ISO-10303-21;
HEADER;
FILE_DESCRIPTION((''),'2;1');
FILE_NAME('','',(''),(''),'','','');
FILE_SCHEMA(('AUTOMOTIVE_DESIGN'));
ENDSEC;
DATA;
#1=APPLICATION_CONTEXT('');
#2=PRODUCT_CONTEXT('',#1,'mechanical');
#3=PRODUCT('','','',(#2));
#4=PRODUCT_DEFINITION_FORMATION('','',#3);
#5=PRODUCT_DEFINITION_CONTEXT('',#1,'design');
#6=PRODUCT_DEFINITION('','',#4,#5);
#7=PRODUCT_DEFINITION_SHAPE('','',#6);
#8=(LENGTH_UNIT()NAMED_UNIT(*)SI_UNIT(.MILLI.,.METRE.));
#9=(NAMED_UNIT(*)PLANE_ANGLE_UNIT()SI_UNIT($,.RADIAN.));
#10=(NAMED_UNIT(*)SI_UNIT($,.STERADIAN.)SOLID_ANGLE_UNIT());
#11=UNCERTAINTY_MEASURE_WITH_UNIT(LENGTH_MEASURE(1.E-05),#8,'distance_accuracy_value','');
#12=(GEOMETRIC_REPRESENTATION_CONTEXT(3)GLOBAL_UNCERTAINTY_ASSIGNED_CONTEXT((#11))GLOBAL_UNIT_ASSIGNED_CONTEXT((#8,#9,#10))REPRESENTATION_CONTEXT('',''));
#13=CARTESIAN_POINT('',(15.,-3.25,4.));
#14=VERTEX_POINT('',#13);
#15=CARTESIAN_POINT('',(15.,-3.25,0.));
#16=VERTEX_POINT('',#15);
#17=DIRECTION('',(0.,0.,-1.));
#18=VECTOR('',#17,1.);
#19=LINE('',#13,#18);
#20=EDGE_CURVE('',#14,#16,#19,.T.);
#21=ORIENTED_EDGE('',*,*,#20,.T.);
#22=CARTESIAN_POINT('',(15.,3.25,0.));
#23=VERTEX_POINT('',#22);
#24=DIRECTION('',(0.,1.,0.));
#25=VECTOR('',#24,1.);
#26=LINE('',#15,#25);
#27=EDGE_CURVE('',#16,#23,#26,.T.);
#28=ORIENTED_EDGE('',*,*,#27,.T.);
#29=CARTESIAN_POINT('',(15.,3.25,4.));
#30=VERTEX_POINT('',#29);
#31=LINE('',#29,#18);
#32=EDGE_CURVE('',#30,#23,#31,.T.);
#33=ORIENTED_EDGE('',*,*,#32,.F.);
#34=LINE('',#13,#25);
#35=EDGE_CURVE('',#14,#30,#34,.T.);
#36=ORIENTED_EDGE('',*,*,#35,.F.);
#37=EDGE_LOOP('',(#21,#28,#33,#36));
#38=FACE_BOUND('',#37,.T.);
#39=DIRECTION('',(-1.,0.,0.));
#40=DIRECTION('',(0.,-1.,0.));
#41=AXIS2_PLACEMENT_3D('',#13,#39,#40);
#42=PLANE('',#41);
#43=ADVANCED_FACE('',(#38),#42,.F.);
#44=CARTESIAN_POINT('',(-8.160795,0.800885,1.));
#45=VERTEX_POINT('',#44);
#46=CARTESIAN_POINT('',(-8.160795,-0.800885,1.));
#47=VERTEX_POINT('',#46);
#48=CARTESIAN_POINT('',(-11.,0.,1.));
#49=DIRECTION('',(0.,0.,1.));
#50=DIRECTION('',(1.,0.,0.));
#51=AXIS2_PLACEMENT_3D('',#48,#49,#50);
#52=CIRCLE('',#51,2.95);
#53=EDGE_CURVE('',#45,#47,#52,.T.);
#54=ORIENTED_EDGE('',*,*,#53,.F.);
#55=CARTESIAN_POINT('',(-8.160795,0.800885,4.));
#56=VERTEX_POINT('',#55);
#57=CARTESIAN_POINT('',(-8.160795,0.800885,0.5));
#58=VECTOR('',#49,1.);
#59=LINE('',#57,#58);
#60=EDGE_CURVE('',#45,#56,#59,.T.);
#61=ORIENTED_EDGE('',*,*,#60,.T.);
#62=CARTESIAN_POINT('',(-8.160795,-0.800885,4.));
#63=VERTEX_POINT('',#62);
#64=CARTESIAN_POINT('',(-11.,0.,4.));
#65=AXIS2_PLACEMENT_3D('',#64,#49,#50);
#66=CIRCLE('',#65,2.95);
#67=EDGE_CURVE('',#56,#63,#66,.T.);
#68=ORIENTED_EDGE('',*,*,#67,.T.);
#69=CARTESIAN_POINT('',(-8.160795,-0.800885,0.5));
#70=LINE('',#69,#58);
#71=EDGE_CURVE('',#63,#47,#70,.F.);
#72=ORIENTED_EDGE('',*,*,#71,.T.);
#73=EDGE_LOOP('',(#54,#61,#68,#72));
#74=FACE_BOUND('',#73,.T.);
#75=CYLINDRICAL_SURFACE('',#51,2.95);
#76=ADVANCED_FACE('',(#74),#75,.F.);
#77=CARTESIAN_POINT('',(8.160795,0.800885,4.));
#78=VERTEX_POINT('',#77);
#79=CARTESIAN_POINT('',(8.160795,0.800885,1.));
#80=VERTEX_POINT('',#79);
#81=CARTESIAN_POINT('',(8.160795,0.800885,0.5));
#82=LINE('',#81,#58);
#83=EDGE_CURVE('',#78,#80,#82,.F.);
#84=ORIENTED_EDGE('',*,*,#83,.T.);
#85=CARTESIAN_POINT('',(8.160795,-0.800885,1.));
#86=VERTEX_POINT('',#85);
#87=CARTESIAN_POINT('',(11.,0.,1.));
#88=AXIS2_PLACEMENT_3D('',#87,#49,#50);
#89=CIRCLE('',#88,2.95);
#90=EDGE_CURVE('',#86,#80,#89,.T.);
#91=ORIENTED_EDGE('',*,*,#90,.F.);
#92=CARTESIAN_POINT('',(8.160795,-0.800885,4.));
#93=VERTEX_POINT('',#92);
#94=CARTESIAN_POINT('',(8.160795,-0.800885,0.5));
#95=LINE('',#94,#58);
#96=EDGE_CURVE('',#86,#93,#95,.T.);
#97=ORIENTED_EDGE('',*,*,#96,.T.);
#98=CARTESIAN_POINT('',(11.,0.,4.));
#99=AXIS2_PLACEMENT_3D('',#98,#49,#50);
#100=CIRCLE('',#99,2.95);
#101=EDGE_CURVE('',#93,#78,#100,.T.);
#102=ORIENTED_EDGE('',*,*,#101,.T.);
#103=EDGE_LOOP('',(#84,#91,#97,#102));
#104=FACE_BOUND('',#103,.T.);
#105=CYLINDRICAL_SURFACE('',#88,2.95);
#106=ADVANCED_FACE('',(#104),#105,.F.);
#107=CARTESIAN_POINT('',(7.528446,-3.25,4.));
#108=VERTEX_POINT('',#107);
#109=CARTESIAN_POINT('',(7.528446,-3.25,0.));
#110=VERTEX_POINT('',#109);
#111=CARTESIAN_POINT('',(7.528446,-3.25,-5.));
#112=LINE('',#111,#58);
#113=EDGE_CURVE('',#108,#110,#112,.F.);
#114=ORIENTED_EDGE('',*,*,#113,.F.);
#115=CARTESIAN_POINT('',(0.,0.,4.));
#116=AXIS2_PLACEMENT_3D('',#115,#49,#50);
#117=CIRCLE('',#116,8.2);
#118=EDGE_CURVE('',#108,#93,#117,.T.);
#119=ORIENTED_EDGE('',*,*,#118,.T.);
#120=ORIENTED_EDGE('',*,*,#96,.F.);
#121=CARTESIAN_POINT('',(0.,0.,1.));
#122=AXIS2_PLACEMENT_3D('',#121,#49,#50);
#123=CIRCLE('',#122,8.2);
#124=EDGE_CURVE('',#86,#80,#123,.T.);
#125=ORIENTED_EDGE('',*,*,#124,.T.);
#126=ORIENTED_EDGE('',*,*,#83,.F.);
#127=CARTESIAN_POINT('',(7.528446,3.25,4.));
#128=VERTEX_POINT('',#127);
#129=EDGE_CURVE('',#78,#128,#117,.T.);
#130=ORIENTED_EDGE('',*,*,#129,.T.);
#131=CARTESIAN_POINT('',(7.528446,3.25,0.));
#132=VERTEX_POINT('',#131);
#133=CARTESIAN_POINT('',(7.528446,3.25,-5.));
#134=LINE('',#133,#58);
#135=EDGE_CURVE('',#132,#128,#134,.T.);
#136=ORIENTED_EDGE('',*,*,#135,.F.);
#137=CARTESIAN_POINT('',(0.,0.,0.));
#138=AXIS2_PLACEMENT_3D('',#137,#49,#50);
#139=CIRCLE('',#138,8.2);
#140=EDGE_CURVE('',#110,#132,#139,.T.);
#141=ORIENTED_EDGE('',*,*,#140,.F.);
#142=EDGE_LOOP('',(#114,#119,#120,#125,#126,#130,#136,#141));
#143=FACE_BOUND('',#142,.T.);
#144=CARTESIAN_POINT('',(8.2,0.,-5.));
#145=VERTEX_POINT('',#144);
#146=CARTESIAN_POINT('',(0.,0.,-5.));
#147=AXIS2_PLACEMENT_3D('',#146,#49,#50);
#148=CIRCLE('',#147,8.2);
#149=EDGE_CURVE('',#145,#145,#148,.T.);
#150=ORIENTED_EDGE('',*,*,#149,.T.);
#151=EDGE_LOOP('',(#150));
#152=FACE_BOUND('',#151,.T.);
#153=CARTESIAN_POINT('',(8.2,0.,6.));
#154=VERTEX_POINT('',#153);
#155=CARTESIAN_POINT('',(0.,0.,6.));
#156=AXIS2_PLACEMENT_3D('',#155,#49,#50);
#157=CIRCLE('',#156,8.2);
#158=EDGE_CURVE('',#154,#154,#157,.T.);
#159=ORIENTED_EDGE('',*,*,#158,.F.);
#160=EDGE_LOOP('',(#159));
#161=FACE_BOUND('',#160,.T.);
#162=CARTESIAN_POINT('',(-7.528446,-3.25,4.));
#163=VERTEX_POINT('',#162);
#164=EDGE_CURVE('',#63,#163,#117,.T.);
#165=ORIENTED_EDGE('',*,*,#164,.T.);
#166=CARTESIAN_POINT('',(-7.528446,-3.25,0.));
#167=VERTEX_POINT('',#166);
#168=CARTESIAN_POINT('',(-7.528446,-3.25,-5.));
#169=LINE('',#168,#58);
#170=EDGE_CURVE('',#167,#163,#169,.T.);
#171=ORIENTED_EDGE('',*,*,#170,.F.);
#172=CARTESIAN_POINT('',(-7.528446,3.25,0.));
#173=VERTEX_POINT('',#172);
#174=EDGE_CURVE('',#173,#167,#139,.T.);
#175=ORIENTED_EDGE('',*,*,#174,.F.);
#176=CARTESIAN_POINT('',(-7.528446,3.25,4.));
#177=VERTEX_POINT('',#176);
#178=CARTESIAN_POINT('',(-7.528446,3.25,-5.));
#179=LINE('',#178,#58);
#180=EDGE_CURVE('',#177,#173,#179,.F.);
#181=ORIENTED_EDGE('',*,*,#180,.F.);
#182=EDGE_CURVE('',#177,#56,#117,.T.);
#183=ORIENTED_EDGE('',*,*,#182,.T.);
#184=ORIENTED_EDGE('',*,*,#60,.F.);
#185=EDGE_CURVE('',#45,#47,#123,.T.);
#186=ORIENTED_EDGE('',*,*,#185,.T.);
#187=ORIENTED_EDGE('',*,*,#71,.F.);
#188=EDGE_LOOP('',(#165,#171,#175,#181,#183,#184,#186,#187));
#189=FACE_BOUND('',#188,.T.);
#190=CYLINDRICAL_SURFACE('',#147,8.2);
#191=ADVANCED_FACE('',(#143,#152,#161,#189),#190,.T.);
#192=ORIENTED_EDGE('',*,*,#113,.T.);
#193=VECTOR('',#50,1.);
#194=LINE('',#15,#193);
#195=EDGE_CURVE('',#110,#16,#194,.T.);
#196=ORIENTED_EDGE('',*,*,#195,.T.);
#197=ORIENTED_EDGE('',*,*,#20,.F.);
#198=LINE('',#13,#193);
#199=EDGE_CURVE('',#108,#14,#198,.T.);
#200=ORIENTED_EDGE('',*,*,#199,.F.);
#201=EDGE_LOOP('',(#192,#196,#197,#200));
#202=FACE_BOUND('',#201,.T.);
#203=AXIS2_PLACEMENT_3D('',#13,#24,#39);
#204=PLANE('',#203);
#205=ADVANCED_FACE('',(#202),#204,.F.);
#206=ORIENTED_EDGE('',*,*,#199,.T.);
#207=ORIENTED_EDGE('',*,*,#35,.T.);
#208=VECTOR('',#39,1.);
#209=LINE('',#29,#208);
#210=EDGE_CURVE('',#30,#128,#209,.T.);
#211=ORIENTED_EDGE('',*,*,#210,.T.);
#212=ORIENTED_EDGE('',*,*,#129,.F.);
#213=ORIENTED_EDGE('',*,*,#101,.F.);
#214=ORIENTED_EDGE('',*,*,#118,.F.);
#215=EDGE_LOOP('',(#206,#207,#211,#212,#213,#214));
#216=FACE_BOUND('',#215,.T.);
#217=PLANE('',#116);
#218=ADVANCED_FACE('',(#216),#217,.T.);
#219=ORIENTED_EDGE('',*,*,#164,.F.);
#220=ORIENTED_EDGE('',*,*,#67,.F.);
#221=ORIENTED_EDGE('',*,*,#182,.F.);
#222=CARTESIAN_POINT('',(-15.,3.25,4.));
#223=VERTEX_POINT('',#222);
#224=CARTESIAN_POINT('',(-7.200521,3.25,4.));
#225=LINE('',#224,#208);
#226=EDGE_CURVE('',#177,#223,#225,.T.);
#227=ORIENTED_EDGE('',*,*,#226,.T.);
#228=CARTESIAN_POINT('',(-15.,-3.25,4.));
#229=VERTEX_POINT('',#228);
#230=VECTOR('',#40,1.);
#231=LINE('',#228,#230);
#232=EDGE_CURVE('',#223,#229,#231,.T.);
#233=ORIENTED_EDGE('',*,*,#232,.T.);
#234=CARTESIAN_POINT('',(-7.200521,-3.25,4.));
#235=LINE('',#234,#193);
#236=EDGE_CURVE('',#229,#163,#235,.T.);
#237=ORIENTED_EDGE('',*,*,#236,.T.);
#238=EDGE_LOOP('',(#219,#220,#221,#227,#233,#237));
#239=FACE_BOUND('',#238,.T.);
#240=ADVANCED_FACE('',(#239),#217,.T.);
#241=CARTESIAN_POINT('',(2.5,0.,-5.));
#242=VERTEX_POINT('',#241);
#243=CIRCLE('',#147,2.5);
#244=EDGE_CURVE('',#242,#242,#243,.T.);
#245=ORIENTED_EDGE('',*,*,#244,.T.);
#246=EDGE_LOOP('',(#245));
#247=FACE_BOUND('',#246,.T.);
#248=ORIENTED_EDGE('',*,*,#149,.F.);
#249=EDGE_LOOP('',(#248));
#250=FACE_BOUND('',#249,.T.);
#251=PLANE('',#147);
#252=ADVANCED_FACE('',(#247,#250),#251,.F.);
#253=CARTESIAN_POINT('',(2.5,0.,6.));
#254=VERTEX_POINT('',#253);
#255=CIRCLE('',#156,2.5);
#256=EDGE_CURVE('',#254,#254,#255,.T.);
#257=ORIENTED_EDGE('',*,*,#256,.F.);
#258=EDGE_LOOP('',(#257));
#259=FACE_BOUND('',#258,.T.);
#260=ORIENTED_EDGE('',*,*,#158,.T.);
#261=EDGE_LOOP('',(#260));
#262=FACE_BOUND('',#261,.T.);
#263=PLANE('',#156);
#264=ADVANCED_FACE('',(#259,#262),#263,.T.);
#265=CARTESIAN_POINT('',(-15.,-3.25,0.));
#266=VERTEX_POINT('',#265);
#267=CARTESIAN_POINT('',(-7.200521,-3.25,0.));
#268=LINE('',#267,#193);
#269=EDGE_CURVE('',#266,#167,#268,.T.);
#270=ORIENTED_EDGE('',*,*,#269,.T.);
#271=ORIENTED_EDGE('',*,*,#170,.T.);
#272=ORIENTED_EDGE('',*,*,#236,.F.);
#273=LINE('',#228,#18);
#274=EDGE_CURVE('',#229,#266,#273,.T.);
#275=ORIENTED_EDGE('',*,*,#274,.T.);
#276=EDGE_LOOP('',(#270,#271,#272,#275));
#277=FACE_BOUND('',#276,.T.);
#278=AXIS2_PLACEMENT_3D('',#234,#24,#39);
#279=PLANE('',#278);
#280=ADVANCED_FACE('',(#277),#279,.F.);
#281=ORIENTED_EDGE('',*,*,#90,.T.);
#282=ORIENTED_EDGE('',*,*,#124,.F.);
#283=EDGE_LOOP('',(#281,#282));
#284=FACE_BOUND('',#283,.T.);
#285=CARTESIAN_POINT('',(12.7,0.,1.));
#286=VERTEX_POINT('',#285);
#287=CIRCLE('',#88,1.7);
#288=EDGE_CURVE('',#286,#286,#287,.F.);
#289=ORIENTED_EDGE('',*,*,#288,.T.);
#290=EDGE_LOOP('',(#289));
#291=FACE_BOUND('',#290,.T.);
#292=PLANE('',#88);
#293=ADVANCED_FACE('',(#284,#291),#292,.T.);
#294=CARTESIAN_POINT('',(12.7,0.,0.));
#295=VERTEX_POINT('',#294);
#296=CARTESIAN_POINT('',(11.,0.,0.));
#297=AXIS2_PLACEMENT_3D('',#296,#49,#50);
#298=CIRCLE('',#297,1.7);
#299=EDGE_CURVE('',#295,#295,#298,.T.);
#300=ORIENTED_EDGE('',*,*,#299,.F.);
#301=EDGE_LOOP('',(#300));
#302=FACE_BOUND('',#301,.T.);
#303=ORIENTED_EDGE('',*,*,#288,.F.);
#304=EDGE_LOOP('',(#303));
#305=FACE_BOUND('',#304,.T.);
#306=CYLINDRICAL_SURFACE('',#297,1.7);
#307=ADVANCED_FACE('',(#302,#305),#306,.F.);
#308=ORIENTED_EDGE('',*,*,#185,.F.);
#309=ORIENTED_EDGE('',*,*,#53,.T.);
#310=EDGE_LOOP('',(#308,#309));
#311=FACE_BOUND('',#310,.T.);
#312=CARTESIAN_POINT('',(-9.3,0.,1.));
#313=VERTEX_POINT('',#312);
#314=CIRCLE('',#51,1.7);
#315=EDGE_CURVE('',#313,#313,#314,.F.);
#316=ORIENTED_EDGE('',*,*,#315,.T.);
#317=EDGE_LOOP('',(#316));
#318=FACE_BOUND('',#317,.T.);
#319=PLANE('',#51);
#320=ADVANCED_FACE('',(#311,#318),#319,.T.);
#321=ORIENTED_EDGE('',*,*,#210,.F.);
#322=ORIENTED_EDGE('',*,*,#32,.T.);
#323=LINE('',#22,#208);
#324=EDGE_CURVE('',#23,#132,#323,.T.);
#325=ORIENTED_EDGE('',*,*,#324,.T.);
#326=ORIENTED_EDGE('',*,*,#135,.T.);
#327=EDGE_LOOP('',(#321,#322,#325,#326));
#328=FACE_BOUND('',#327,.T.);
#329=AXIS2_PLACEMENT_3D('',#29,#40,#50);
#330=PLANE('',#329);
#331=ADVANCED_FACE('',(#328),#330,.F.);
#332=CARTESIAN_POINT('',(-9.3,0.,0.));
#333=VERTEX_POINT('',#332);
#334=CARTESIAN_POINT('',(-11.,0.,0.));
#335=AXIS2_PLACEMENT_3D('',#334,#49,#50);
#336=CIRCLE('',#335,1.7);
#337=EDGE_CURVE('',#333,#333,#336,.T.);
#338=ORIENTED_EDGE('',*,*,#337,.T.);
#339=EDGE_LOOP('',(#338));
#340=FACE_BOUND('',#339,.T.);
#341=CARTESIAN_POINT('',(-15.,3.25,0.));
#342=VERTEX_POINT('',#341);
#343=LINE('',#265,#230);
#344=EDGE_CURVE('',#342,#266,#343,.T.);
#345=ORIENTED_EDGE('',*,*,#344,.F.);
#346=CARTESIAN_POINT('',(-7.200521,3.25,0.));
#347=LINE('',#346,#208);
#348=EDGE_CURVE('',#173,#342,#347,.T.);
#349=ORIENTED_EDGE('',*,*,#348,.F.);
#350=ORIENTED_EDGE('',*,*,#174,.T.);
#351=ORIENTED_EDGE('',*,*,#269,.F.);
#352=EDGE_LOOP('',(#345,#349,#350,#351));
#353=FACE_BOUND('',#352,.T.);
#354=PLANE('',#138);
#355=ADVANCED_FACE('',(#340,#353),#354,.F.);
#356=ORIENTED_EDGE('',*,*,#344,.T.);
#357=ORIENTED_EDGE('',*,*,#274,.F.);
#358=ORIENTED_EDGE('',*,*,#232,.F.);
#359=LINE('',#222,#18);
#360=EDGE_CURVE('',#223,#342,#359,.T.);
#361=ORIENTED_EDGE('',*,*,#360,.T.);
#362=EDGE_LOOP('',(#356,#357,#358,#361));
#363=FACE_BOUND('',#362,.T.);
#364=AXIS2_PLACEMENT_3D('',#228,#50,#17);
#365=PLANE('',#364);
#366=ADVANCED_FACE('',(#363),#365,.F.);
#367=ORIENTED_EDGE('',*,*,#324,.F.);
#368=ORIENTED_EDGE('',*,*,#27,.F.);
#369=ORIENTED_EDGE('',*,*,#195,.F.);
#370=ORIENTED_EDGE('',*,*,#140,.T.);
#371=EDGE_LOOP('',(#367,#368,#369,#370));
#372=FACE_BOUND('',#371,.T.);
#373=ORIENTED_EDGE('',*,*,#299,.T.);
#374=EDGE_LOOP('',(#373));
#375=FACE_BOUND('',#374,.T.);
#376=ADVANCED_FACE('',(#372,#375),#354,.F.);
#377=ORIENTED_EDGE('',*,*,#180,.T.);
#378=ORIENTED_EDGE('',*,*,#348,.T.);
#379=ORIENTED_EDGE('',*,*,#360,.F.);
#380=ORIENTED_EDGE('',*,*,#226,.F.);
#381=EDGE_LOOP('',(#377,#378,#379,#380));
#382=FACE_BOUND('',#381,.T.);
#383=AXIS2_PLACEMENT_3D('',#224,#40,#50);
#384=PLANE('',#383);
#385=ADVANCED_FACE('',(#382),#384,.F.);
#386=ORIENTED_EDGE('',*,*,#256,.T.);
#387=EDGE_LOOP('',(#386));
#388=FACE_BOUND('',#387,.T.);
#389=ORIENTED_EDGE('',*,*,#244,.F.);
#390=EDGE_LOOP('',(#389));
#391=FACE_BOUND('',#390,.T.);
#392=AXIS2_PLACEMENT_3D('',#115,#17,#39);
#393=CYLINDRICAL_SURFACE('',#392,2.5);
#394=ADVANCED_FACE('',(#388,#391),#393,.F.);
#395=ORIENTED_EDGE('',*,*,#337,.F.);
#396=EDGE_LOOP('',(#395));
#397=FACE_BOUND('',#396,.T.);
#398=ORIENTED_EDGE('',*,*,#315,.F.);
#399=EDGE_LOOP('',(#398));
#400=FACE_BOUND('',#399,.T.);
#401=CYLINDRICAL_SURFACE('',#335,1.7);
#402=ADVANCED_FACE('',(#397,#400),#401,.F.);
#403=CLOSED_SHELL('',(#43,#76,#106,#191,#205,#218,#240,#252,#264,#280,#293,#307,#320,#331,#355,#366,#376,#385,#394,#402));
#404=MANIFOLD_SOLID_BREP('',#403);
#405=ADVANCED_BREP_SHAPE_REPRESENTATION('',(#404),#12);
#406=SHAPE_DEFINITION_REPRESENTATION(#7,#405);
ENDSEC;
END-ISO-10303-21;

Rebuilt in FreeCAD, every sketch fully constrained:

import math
import FreeCAD as App
import Part
import Sketcher
from FreeCAD import Vector
Q = App.Units.Quantity

doc = App.newDocument("Part")
body = doc.addObject("PartDesign::Body", "Body")

# Sketch on XY plane
sketch1 = doc.addObject("Sketcher::SketchObject", "Sketch")
body.addObject(sketch1)
sketch1.AttachmentSupport = (doc.XY_Plane, [""])
sketch1.MapMode = "FlatFace"
sketch1.addGeometry(Part.LineSegment(Vector(-7.2, 3.2, 0), Vector(-15, 3.2, 0)), False)
sketch1.addGeometry(Part.LineSegment(Vector(-15, 3.2, 0), Vector(-15, -3.2, 0)), False)
sketch1.addGeometry(Part.LineSegment(Vector(-15, -3.2, 0), Vector(-7.2, -3.2, 0)), False)
sketch1.addGeometry(Part.ArcOfCircle(Part.Circle(Vector(0, 0, 0), Vector(0, 0, 1), 7.9), math.radians(-156), math.radians(-24)), False)
sketch1.addGeometry(Part.LineSegment(Vector(7.2, -3.2, 0), Vector(15, -3.2, 0)), False)
sketch1.addGeometry(Part.LineSegment(Vector(15, -3.2, 0), Vector(15, 3.2, 0)), False)
sketch1.addGeometry(Part.LineSegment(Vector(15, 3.2, 0), Vector(7.2, 3.2, 0)), False)
sketch1.addGeometry(Part.ArcOfCircle(Part.Circle(Vector(0, 0, 0), Vector(0, 0, 1), 7.9), math.radians(24), math.radians(156)), False)
sketch1.addGeometry(Part.Circle(Vector(0, 0, 0), Vector(0, 0, 1), 2.5), False)
sketch1.addConstraint(Sketcher.Constraint("Coincident", 0, 2, 1, 1))
sketch1.addConstraint(Sketcher.Constraint("Coincident", 1, 2, 2, 1))
sketch1.addConstraint(Sketcher.Constraint("Coincident", 2, 2, 3, 1))
sketch1.addConstraint(Sketcher.Constraint("Coincident", 3, 2, 4, 1))
sketch1.addConstraint(Sketcher.Constraint("Coincident", 4, 2, 5, 1))
sketch1.addConstraint(Sketcher.Constraint("Coincident", 5, 2, 6, 1))
sketch1.addConstraint(Sketcher.Constraint("Coincident", 6, 2, 7, 1))
sketch1.addConstraint(Sketcher.Constraint("Coincident", 7, 2, 0, 1))
sketch1.addConstraint(Sketcher.Constraint("Horizontal", 0))
sketch1.addConstraint(Sketcher.Constraint("Vertical", 1))
sketch1.addConstraint(Sketcher.Constraint("Horizontal", 2))
sketch1.addConstraint(Sketcher.Constraint("Horizontal", 4))
sketch1.addConstraint(Sketcher.Constraint("Vertical", 5))
sketch1.addConstraint(Sketcher.Constraint("Horizontal", 6))
sketch1.addConstraint(Sketcher.Constraint("Coincident", 3, 3, -1, 1))
sketch1.addConstraint(Sketcher.Constraint("Coincident", 7, 3, -1, 1))
sketch1.addConstraint(Sketcher.Constraint("Coincident", 8, 3, -1, 1))
sketch1.addConstraint(Sketcher.Constraint("Equal", 3, 7))
sketch1.addConstraint(Sketcher.Constraint("Symmetric", 0, 2, 4, 2, -1, 1))
sketch1.addConstraint(Sketcher.Constraint("Horizontal", 2, 2, 3, 2))
sketch1.addConstraint(Sketcher.Constraint("Horizontal", 0, 2, 5, 2))
sketch1.addConstraint(Sketcher.Constraint("Diameter", 8, Q("5 mm")))
sketch1.addConstraint(Sketcher.Constraint("Radius", 3, Q("7.9 mm")))
sketch1.addConstraint(Sketcher.Constraint("DistanceY", 1, 2, 1, 1, Q("6.5 mm")))
sketch1.addConstraint(Sketcher.Constraint("DistanceX", 0, 2, -1, 1, Q("15 mm")))
pad1 = doc.addObject("PartDesign::Pad", "Pad")
body.addObject(pad1)
pad1.Profile = sketch1
pad1.Length = 4

# Sketch on XY plane
sketch2 = doc.addObject("Sketcher::SketchObject", "Sketch001")
body.addObject(sketch2)
sketch2.AttachmentSupport = (doc.XY_Plane, [""])
sketch2.MapMode = "FlatFace"
sketch2.AttachmentOffset = App.Placement(Vector(0, 0, 4), App.Rotation())
sketch2.addGeometry(Part.Circle(Vector(-11, 0, 0), Vector(0, 0, 1), 1.7), False)
sketch2.addGeometry(Part.Circle(Vector(11, 0, 0), Vector(0, 0, 1), 1.7), False)
sketch2.addConstraint(Sketcher.Constraint("Equal", 0, 1))
sketch2.addConstraint(Sketcher.Constraint("Symmetric", 0, 3, 1, 3, -1, 1))
sketch2.addConstraint(Sketcher.Constraint("PointOnObject", 0, 3, -1))
sketch2.addConstraint(Sketcher.Constraint("Diameter", 0, Q("3.4 mm")))
sketch2.addConstraint(Sketcher.Constraint("DistanceX", 0, 3, -1, 1, Q("11 mm")))
pocket1 = doc.addObject("PartDesign::Pocket", "Pocket")
body.addObject(pocket1)
pocket1.Profile = sketch2
pocket1.Length = 4

# Sketch on XY plane
sketch3 = doc.addObject("Sketcher::SketchObject", "Sketch002")
body.addObject(sketch3)
sketch3.AttachmentSupport = (doc.XY_Plane, [""])
sketch3.MapMode = "FlatFace"
sketch3.AttachmentOffset = App.Placement(Vector(0, 0, 4), App.Rotation())
sketch3.addGeometry(Part.Circle(Vector(-11, 0, 0), Vector(0, 0, 1), 3), False)
sketch3.addGeometry(Part.Circle(Vector(11, 0, 0), Vector(0, 0, 1), 3), False)
sketch3.addConstraint(Sketcher.Constraint("Equal", 0, 1))
sketch3.addConstraint(Sketcher.Constraint("Symmetric", 0, 3, 1, 3, -1, 1))
sketch3.addConstraint(Sketcher.Constraint("PointOnObject", 0, 3, -1))
sketch3.addConstraint(Sketcher.Constraint("Diameter", 0, Q("5.9 mm")))
sketch3.addConstraint(Sketcher.Constraint("DistanceX", 0, 3, -1, 1, Q("11 mm")))
pocket2 = doc.addObject("PartDesign::Pocket", "Pocket001")
body.addObject(pocket2)
pocket2.Profile = sketch3
pocket2.Length = 3

# Sketch on XY plane
sketch4 = doc.addObject("Sketcher::SketchObject", "Sketch003")
body.addObject(sketch4)
sketch4.AttachmentSupport = (doc.XY_Plane, [""])
sketch4.MapMode = "FlatFace"
sketch4.AttachmentOffset = App.Placement(Vector(0, 0, 4), App.Rotation())
sketch4.addGeometry(Part.Circle(Vector(0, 0, 0), Vector(0, 0, 1), 8.2), False)
sketch4.addGeometry(Part.Circle(Vector(0, 0, 0), Vector(0, 0, 1), 2.5), False)
sketch4.addConstraint(Sketcher.Constraint("Coincident", 0, 3, -1, 1))
sketch4.addConstraint(Sketcher.Constraint("Coincident", 1, 3, -1, 1))
sketch4.addConstraint(Sketcher.Constraint("Diameter", 1, Q("5 mm")))
sketch4.addConstraint(Sketcher.Constraint("Diameter", 0, Q("16.4 mm")))
pad2 = doc.addObject("PartDesign::Pad", "Pad001")
body.addObject(pad2)
pad2.Profile = sketch4
pad2.Type = "TwoLengths"
pad2.Length = 2
pad2.Length2 = 9

doc.recompute()
